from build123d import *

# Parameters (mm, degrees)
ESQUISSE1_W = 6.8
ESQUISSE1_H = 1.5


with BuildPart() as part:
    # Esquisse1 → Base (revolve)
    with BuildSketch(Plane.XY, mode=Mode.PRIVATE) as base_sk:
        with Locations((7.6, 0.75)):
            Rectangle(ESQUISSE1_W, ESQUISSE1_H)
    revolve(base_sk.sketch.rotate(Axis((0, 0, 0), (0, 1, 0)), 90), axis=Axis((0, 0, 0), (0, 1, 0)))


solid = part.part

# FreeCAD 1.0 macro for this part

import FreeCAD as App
import Part
import Sketcher

doc = App.newDocument("Part")
body = doc.addObject("PartDesign::Body", "Body")

sketch1 = body.newObject("Sketcher::SketchObject", "Sketch")
sketch1.AttachmentSupport = (doc.getObject("XY_Plane"), [""])
sketch1.MapMode = "FlatFace"
sketch1.addGeometry(Part.LineSegment(App.Vector(4.2, 1.5, 0), App.Vector(4.2, 0, 0)), False)
sketch1.addGeometry(Part.LineSegment(App.Vector(4.2, 0, 0), App.Vector(11, 0, 0)), False)
sketch1.addGeometry(Part.LineSegment(App.Vector(11, 0, 0), App.Vector(11, 1.5, 0)), False)
sketch1.addGeometry(Part.LineSegment(App.Vector(11, 1.5, 0), App.Vector(4.2, 1.5, 0)), False)
sketch1.addConstraint(Sketcher.Constraint("Coincident", 0, 2, 1, 1))
sketch1.addConstraint(Sketcher.Constraint("Coincident", 1, 2, 2, 1))
sketch1.addConstraint(Sketcher.Constraint("Coincident", 2, 2, 3, 1))
sketch1.addConstraint(Sketcher.Constraint("Coincident", 3, 2, 0, 1))
sketch1.addConstraint(Sketcher.Constraint("Vertical", 0))
sketch1.addConstraint(Sketcher.Constraint("Horizontal", 1))
sketch1.addConstraint(Sketcher.Constraint("Vertical", 2))
sketch1.addConstraint(Sketcher.Constraint("Horizontal", 3))
sketch1.addConstraint(Sketcher.Constraint("PointOnObject", 0, 2, -1))
sketch1.addConstraint(Sketcher.Constraint("DistanceX", 1, 1, 1, 2, 6.8))
sketch1.addConstraint(Sketcher.Constraint("DistanceY", 0, 2, 0, 1, 1.5))
sketch1.addConstraint(Sketcher.Constraint("DistanceX", -1, 1, 1, 2, 11.0))
revolution = body.newObject("PartDesign::Revolution", "Revolution")
revolution.Profile = sketch1
revolution.ReferenceAxis = (sketch1, ["V_Axis"])
revolution.Angle = 360

doc.recompute()
